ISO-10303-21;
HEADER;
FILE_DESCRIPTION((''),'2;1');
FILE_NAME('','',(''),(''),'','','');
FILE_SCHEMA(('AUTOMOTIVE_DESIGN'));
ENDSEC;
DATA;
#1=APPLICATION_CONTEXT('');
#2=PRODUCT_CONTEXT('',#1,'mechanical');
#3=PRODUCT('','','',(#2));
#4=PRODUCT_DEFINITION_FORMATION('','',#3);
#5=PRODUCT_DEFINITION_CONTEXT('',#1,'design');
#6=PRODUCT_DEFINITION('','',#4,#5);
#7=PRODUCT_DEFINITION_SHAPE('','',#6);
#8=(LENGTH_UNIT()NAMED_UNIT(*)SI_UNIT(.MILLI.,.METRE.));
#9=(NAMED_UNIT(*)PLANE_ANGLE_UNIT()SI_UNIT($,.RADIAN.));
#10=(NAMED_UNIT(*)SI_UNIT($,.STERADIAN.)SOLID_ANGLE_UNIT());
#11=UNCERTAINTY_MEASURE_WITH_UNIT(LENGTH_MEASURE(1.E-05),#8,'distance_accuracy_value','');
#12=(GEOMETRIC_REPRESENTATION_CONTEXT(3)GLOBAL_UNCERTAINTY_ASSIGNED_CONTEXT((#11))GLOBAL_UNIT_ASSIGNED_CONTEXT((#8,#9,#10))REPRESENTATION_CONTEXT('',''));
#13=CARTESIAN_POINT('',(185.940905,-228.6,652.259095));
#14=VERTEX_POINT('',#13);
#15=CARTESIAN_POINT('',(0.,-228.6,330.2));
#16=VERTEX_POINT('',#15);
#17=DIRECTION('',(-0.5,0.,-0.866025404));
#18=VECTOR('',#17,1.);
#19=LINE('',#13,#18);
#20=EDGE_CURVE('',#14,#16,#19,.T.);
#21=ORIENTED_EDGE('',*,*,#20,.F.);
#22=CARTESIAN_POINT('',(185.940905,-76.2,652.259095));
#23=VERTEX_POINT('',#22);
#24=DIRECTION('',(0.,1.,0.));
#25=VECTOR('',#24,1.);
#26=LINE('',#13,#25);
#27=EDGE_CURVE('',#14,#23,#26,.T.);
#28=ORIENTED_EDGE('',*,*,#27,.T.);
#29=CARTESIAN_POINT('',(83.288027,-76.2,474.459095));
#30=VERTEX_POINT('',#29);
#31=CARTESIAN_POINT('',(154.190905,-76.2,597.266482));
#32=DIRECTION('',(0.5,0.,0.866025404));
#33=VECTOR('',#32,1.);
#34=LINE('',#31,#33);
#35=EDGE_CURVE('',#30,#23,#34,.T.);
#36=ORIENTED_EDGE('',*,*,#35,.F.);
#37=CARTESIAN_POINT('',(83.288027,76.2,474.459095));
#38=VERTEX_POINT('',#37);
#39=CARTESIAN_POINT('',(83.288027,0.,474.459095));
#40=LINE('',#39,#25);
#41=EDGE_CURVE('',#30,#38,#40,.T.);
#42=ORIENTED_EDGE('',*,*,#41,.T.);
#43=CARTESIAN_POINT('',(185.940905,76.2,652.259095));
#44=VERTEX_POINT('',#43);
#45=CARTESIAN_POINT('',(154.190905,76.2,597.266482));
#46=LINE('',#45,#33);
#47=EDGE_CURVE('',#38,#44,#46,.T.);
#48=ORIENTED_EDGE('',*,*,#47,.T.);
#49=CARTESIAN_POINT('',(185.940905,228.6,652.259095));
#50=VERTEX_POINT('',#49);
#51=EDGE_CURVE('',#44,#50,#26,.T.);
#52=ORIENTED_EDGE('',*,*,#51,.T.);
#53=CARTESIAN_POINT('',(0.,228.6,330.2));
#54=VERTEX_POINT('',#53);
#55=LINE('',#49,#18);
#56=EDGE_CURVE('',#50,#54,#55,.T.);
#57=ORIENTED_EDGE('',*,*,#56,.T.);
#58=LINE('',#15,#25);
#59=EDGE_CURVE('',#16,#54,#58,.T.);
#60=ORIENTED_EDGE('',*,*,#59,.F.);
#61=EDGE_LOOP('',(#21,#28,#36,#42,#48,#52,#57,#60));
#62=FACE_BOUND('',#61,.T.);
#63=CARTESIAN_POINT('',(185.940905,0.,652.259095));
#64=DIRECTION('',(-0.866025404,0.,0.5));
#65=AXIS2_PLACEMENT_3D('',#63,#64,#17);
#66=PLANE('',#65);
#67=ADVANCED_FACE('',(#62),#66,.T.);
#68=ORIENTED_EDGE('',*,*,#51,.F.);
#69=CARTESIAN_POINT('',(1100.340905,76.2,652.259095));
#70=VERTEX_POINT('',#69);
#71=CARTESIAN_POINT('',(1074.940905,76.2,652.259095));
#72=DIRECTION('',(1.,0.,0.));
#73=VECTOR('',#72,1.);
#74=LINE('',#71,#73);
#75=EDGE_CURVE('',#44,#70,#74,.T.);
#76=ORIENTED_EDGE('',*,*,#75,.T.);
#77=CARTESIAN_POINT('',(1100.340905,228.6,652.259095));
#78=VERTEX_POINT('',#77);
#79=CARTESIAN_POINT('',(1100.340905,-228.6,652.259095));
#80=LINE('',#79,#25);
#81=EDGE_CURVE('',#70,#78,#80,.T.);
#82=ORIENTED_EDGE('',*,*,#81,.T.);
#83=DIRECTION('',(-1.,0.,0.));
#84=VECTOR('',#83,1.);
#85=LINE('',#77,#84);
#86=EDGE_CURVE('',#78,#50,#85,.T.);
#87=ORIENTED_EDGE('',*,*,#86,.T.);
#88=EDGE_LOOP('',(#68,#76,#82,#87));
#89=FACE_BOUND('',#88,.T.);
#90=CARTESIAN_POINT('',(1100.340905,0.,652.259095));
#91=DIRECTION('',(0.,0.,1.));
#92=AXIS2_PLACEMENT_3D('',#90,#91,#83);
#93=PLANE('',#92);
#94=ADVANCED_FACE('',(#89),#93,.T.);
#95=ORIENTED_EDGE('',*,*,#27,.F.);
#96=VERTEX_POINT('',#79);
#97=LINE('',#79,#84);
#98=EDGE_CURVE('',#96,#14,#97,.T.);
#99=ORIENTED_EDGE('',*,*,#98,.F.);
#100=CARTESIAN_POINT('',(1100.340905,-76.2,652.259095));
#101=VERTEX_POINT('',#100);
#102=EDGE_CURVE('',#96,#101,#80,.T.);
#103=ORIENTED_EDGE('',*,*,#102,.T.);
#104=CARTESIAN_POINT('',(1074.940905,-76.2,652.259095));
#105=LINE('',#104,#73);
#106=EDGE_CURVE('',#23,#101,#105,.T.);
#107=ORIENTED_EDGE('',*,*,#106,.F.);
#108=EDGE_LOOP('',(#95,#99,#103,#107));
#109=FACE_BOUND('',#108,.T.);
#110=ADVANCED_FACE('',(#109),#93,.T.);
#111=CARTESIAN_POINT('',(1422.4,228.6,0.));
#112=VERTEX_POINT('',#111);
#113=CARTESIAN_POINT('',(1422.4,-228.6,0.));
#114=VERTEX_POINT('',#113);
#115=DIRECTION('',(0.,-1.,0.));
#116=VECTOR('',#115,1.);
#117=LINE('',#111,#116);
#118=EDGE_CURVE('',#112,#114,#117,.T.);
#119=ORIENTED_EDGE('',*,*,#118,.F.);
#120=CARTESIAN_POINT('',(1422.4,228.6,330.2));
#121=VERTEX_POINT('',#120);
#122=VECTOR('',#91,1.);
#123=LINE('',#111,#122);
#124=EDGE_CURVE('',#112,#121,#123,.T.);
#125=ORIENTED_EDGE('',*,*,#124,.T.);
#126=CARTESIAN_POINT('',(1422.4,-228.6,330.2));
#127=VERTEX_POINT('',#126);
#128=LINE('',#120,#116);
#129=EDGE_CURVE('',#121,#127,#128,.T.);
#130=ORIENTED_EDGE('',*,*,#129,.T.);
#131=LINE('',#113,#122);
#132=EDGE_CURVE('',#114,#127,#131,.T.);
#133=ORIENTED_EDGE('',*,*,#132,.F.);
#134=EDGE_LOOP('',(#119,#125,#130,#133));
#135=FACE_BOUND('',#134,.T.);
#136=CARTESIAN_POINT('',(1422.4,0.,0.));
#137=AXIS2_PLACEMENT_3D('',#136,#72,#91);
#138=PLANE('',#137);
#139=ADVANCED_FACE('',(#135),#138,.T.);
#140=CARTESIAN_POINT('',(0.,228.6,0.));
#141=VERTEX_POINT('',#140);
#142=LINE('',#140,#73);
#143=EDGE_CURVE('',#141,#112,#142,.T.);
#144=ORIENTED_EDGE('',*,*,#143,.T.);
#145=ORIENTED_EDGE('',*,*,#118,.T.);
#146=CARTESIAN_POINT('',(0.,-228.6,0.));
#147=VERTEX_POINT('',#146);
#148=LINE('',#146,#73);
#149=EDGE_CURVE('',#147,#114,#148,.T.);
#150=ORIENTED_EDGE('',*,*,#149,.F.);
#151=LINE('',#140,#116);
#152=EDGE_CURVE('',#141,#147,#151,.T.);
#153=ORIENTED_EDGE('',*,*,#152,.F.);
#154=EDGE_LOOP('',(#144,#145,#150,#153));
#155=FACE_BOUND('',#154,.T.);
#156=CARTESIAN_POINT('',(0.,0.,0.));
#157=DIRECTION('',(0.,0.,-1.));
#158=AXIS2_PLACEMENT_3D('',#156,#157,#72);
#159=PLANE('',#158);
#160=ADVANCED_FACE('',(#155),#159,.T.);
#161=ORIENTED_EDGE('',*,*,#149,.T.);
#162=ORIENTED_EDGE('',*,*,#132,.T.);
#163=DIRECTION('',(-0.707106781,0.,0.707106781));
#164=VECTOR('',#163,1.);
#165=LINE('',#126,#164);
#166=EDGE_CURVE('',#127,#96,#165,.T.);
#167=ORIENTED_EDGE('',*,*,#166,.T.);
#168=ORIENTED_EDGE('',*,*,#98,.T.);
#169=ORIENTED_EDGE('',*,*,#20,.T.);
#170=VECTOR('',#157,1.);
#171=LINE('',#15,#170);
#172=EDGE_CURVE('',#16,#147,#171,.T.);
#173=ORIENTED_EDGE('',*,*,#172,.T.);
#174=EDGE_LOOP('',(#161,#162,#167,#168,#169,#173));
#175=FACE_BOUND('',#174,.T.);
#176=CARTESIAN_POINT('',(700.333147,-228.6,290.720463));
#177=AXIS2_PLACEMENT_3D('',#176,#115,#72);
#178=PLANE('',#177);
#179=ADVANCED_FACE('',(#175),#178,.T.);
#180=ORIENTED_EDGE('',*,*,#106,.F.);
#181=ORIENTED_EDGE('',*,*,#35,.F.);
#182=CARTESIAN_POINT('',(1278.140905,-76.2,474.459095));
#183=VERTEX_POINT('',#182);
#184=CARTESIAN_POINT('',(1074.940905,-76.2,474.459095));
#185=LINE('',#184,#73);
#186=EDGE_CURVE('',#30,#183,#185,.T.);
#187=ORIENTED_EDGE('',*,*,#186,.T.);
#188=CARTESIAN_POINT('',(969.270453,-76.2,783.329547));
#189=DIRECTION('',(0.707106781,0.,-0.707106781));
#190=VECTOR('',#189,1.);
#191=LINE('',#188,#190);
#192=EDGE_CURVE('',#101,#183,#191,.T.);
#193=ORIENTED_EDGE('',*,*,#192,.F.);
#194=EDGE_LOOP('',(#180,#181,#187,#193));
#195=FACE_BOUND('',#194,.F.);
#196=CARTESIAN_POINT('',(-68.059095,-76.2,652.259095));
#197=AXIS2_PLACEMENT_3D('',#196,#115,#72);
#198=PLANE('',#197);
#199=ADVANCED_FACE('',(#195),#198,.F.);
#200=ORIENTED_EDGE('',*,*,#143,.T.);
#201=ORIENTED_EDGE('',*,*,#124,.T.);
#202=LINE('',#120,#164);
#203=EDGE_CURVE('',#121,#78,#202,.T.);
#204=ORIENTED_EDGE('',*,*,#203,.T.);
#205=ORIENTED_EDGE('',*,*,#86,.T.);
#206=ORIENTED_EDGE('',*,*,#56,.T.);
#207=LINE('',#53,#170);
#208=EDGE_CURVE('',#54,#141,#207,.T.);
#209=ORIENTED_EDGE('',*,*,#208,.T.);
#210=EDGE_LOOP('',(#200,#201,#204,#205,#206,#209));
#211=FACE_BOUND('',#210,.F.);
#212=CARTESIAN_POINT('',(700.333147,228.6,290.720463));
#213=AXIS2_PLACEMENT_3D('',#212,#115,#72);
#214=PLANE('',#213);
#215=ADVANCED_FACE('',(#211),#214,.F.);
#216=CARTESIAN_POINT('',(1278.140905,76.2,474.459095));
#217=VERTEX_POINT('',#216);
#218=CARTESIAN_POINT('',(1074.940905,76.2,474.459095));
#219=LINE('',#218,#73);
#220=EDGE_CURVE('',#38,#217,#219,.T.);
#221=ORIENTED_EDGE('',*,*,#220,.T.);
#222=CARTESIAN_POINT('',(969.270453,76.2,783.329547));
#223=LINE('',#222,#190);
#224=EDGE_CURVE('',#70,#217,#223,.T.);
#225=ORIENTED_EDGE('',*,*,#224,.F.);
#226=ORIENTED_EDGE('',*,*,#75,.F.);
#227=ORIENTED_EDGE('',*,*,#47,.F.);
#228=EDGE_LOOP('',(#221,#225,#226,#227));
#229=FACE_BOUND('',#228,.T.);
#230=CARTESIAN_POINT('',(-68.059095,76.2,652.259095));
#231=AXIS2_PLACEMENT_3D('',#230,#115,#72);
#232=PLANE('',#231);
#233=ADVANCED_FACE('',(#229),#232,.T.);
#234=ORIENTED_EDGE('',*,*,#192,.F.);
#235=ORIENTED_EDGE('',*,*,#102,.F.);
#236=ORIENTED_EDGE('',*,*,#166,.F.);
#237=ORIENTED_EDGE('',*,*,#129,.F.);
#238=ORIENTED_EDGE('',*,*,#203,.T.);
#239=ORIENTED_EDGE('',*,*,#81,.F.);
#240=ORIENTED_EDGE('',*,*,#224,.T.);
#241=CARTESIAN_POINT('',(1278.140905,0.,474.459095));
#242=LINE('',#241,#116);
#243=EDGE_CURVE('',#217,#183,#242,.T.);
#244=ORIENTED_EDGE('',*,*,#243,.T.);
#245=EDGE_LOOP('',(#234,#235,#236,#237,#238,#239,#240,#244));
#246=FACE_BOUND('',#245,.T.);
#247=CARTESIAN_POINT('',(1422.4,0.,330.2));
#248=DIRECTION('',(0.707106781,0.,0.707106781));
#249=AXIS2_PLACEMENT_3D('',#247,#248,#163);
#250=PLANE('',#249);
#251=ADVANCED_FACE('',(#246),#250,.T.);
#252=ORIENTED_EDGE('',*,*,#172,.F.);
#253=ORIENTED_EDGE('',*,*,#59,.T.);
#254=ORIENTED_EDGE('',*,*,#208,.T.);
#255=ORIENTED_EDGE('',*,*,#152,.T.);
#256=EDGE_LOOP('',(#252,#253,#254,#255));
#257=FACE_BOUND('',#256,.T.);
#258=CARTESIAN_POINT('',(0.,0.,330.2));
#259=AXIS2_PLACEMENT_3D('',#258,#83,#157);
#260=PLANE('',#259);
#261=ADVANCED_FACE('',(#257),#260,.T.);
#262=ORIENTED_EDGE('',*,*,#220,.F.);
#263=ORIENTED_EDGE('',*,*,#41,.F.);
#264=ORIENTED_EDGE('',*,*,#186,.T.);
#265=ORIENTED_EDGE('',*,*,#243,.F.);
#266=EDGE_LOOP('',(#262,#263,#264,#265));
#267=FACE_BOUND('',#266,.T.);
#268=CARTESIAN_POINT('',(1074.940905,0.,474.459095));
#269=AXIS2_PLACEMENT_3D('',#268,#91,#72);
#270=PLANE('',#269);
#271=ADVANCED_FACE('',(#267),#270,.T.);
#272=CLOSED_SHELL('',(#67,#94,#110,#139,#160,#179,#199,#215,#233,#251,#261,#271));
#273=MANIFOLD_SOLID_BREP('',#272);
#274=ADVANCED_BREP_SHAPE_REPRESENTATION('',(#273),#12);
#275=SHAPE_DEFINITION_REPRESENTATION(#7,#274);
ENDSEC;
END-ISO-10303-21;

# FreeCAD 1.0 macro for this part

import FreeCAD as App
import Part
import Sketcher
Q = App.Units.Quantity

doc = App.newDocument("Part")
body = doc.addObject("PartDesign::Body", "Body")

sketch1 = body.newObject("Sketcher::SketchObject", "Sketch")
sketch1.AttachmentSupport = (doc.getObject("XZ_Plane"), [""])
sketch1.MapMode = "FlatFace"
sketch1.addGeometry([
    Part.LineSegment(App.Vector(0, 330, 0), App.Vector(0, 0, 0)),
    Part.LineSegment(App.Vector(0, 0, 0), App.Vector(1422, 0, 0)),
    Part.LineSegment(App.Vector(1422, 0, 0), App.Vector(1422, 330, 0)),
    Part.LineSegment(App.Vector(1422, 330, 0), App.Vector(1100, 652, 0)),
    Part.LineSegment(App.Vector(1100, 652, 0), App.Vector(186, 652, 0)),
    Part.LineSegment(App.Vector(186, 652, 0), App.Vector(0, 330, 0)),
], False)
sketch1.addConstraint([
    Sketcher.Constraint("Coincident", 0, 2, 1, 1),
    Sketcher.Constraint("Coincident", 1, 2, 2, 1),
    Sketcher.Constraint("Coincident", 2, 2, 3, 1),
    Sketcher.Constraint("Coincident", 3, 2, 4, 1),
    Sketcher.Constraint("Coincident", 4, 2, 5, 1),
    Sketcher.Constraint("Coincident", 5, 2, 0, 1),
    Sketcher.Constraint("Vertical", 0),
    Sketcher.Constraint("Horizontal", 1),
    Sketcher.Constraint("Vertical", 2),
    Sketcher.Constraint("Horizontal", 4),
    Sketcher.Constraint("Coincident", 0, 2, -1, 1),
    Sketcher.Constraint("Horizontal", 2, 2, 5, 2),
    Sketcher.Constraint("DistanceX", 1, 1, 1, 2, Q("56 in")),
    Sketcher.Constraint("DistanceX", 4, 2, 4, 1, Q("36 in")),
    Sketcher.Constraint("DistanceY", 0, 2, 0, 1, Q("13 in")),
    Sketcher.Constraint("Angle", 3, Q("135 deg")),
    Sketcher.Constraint("Angle", 5, Q("-120 deg")),
])
pad1 = body.newObject("PartDesign::Pad", "Pad")
pad1.Profile = sketch1
pad1.Length = Q("18 in")
pad1.Midplane = True

sketch2 = body.newObject("Sketcher::SketchObject", "Sketch001")
sketch2.AttachmentSupport = (doc.getObject("XY_Plane"), [""])
sketch2.MapMode = "FlatFace"
sketch2.AttachmentOffset = App.Placement(App.Vector(0, 0, 652.259095), App.Rotation())
sketch2.addGeometry([
    Part.LineSegment(App.Vector(-68, 76, 0), App.Vector(-68, -76, 0)),
    Part.LineSegment(App.Vector(-68, -76, 0), App.Vector(2218, -76, 0)),
    Part.LineSegment(App.Vector(2218, -76, 0), App.Vector(2218, 76, 0)),
    Part.LineSegment(App.Vector(2218, 76, 0), App.Vector(-68, 76, 0)),
], False)
sketch2.addConstraint([
    Sketcher.Constraint("Coincident", 0, 2, 1, 1),
    Sketcher.Constraint("Coincident", 1, 2, 2, 1),
    Sketcher.Constraint("Coincident", 2, 2, 3, 1),
    Sketcher.Constraint("Coincident", 3, 2, 0, 1),
    Sketcher.Constraint("Vertical", 0),
    Sketcher.Constraint("Horizontal", 1),
    Sketcher.Constraint("Vertical", 2),
    Sketcher.Constraint("Horizontal", 3),
    Sketcher.Constraint("DistanceX", 1, 1, 1, 2, Q("90 in")),
    Sketcher.Constraint("DistanceY", 0, 2, 0, 1, Q("6 in")),
    Sketcher.Constraint("DistanceY", 0, 2, -1, 1, Q("3 in")),
    Sketcher.Constraint("DistanceX", 0, 2, -1, 1, Q("68.059095 mm")),
])
pocket1 = body.newObject("PartDesign::Pocket", "Pocket")
pocket1.Profile = sketch2
pocket1.Length = Q("7 in")

doc.recompute()
